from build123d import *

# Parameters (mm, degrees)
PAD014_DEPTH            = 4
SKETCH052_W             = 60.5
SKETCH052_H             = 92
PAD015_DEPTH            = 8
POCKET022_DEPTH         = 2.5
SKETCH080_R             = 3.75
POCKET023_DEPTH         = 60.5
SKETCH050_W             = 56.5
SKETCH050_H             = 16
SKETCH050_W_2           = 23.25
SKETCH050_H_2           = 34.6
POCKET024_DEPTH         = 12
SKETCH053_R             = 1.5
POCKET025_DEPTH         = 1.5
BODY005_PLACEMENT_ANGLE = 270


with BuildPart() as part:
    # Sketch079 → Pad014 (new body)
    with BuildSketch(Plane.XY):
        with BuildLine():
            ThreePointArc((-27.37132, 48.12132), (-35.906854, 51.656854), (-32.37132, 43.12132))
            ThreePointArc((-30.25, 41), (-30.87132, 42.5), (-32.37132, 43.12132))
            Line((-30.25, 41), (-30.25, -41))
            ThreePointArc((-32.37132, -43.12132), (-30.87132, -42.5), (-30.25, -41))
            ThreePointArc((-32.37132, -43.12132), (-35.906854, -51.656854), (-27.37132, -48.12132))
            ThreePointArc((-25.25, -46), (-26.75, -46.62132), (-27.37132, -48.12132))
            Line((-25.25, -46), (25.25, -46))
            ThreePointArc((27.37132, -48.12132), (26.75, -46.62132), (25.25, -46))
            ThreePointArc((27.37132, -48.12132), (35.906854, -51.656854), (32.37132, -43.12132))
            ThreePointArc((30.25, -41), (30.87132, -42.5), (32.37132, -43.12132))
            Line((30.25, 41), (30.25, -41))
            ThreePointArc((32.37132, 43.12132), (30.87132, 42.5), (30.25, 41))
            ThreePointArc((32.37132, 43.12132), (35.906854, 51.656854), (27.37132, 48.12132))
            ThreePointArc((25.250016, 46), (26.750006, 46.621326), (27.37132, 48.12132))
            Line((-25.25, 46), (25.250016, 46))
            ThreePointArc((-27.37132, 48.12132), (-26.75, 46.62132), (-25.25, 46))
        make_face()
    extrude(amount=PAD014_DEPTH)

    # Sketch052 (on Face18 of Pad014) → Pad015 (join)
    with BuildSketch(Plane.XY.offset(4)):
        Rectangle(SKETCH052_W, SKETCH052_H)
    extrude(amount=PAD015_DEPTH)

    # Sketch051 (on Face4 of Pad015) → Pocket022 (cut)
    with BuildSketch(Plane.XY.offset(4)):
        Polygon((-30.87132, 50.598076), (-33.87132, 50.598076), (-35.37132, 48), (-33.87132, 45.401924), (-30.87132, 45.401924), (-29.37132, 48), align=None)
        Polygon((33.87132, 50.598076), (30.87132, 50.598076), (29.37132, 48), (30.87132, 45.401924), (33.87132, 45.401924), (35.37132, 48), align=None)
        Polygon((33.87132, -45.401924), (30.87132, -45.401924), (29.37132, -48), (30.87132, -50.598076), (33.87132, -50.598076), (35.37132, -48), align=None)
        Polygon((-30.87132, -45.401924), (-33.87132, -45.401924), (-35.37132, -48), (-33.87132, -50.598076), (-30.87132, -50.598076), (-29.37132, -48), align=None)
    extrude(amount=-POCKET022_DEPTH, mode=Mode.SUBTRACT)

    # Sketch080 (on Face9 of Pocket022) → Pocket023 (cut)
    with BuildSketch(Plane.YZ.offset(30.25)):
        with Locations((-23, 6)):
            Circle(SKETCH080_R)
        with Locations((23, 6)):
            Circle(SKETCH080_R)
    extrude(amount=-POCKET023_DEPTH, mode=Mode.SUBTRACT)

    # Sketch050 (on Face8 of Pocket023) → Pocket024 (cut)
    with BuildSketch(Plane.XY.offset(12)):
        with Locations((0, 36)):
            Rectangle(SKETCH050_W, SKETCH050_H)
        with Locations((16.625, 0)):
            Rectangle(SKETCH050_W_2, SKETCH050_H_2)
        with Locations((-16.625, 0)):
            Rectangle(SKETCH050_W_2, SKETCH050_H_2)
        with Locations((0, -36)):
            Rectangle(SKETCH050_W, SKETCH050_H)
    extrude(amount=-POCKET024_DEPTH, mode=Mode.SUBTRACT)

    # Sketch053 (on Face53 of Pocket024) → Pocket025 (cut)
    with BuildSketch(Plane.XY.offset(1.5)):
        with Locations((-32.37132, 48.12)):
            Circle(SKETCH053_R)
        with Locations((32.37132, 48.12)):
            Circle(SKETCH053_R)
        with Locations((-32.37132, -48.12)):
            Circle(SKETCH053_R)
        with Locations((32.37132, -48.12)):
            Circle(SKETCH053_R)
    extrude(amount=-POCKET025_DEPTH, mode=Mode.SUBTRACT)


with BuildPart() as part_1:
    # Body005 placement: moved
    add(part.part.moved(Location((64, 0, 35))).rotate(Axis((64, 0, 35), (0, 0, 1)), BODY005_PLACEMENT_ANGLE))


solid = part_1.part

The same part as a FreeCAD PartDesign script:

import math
import FreeCAD as App
import Part
import Sketcher
Q = App.Units.Quantity


def add_polygon(sketch, points):
    """Adds a closed chain of lines whose ends are joined by coincident constraints."""
    first, n = sketch.GeometryCount, len(points)
    for a, b in zip(points, points[1:] + points[:1]):
        sketch.addGeometry(Part.LineSegment(App.Vector(*a, 0), App.Vector(*b, 0)), False)
    for i in range(n):
        sketch.addConstraint(Sketcher.Constraint("Coincident", first + i, 2, first + (i + 1) % n, 1))

doc = App.newDocument("Part")
body = doc.addObject("PartDesign::Body", "Body")

# Sketch on XY plane
sketch1 = body.newObject("Sketcher::SketchObject", "Sketch")
sketch1.AttachmentSupport = (doc.getObject("XY_Plane"), [""])
sketch1.MapMode = "FlatFace"
sketch1.addGeometry([
    Part.ArcOfCircle(Part.Circle(App.Vector(-32.37132, 48.12132, 0), App.Vector(0, 0, 1), 5), math.radians(-0.000001), math.radians(270.000001)),  # 0
    Part.ArcOfCircle(Part.Circle(App.Vector(-32.371319, 41.000001, 0), App.Vector(0, 0, 1), 2.121319), math.radians(-0.000022), math.radians(90.000022)),  # 1
    Part.LineSegment(App.Vector(-30.25, 41, 0), App.Vector(-30.25, -41, 0)),  # 2
    Part.ArcOfCircle(Part.Circle(App.Vector(-32.371319, -41.000001, 0), App.Vector(0, 0, 1), 2.121319), math.radians(-90.000022), math.radians(0.000022)),  # 3
    Part.ArcOfCircle(Part.Circle(App.Vector(-32.37132, -48.12132, 0), App.Vector(0, 0, 1), 5), math.radians(89.999999), math.radians(360.000001)),  # 4
    Part.ArcOfCircle(Part.Circle(App.Vector(-25.250001, -48.121319, 0), App.Vector(0, 0, 1), 2.121319), math.radians(89.999978), math.radians(180.000022)),  # 5
    Part.LineSegment(App.Vector(-25.25, -46, 0), App.Vector(25.25, -46, 0)),  # 6
    Part.ArcOfCircle(Part.Circle(App.Vector(25.250001, -48.121319, 0), App.Vector(0, 0, 1), 2.121319), math.radians(-0.000022), math.radians(90.000022)),  # 7
    Part.ArcOfCircle(Part.Circle(App.Vector(32.37132, -48.12132, 0), App.Vector(0, 0, 1), 5), math.radians(179.999999), math.radians(450.000001)),  # 8
    Part.ArcOfCircle(Part.Circle(App.Vector(32.371319, -41.000001, 0), App.Vector(0, 0, 1), 2.121319), math.radians(179.999978), math.radians(270.000022)),  # 9
    Part.LineSegment(App.Vector(30.25, -41, 0), App.Vector(30.25, 41, 0)),  # 10
    Part.ArcOfCircle(Part.Circle(App.Vector(32.371319, 41.000001, 0), App.Vector(0, 0, 1), 2.121319), math.radians(89.999978), math.radians(180.000022)),  # 11
    Part.ArcOfCircle(Part.Circle(App.Vector(32.37132, 48.12132, 0), App.Vector(0, 0, 1), 5), math.radians(-90.000001), math.radians(180.000001)),  # 12
    Part.ArcOfCircle(Part.Circle(App.Vector(25.250001, 48.121319, 0), App.Vector(0, 0, 1), 2.121319), math.radians(-89.99959), math.radians(0.000022)),  # 13
    Part.LineSegment(App.Vector(25.250016, 46, 0), App.Vector(-25.25, 46, 0)),  # 14
    Part.ArcOfCircle(Part.Circle(App.Vector(-25.250001, 48.121319, 0), App.Vector(0, 0, 1), 2.121319), math.radians(179.999978), math.radians(270.000022)),  # 15
], False)
sketch1.addConstraint([
    Sketcher.Constraint("Tangent", 0, 2, 1, 2),
    Sketcher.Constraint("Tangent", 1, 1, 2, 1),
    Sketcher.Constraint("Tangent", 2, 2, 3, 2),
    Sketcher.Constraint("Tangent", 3, 1, 4, 1),
    Sketcher.Constraint("Tangent", 4, 2, 5, 2),
    Sketcher.Constraint("Tangent", 5, 1, 6, 1),
    Sketcher.Constraint("Tangent", 6, 2, 7, 2),
    Sketcher.Constraint("Tangent", 7, 1, 8, 1),
    Sketcher.Constraint("Tangent", 8, 2, 9, 2),
    Sketcher.Constraint("Tangent", 9, 1, 10, 1),
    Sketcher.Constraint("Tangent", 10, 2, 11, 2),
    Sketcher.Constraint("Tangent", 11, 1, 12, 1),
    Sketcher.Constraint("Tangent", 12, 2, 13, 2),
    Sketcher.Constraint("Coincident", 13, 1, 14, 1),
    Sketcher.Constraint("Tangent", 14, 2, 15, 2),
    Sketcher.Constraint("Tangent", 15, 1, 0, 1),
    Sketcher.Constraint("Vertical", 2),
    Sketcher.Constraint("Horizontal", 6),
    Sketcher.Constraint("Vertical", 10),
    Sketcher.Constraint("Horizontal", 14),
    Sketcher.Constraint("Equal", 1, 3),
    Sketcher.Constraint("Equal", 0, 4),
    Sketcher.Constraint("Equal", 3, 5),
    Sketcher.Constraint("Equal", 5, 7),
    Sketcher.Constraint("Equal", 4, 8),
    Sketcher.Constraint("Equal", 7, 9),
    Sketcher.Constraint("Equal", 9, 11),
    Sketcher.Constraint("Equal", 8, 12),
    Sketcher.Constraint("Equal", 11, 13),
    Sketcher.Constraint("Equal", 13, 15),
    Sketcher.Constraint("Symmetric", 0, 3, 8, 3, -1, 1),
    Sketcher.Constraint("Symmetric", 3, 3, 11, 3, -1, 1),
    Sketcher.Constraint("Symmetric", 5, 3, 13, 3, -1, 1),
    Sketcher.Constraint("Symmetric", 4, 3, 8, 3, -2),
    Sketcher.Constraint("Horizontal", 4, 3, 5, 3),
    Sketcher.Constraint("Vertical", 0, 3, 1, 3),
    Sketcher.Constraint("Radius", 0, Q("5 mm")),
    Sketcher.Constraint("DistanceY", 2, 2, 2, 1, Q("82 mm")),
    Sketcher.Constraint("DistanceX", 6, 1, 6, 2, Q("50.5 mm")),
    Sketcher.Constraint("Radius", 1, Q("2.121319 mm")),
    Sketcher.Constraint("DistanceX", 14, 2, 14, 1, Q("50.500016 mm")),
])
pad1 = body.newObject("PartDesign::Pad", "Pad")
pad1.Profile = sketch1
pad1.Length = 4

# Sketch on XY plane
sketch2 = body.newObject("Sketcher::SketchObject", "Sketch001")
sketch2.AttachmentSupport = (doc.getObject("XY_Plane"), [""])
sketch2.MapMode = "FlatFace"
sketch2.AttachmentOffset = App.Placement(App.Vector(0, 0, 4), App.Rotation())
add_polygon(sketch2, [(-30.25, 46), (-30.25, -46), (30.25, -46), (30.25, 46)])  # lines 0-3
sketch2.addConstraint([
    Sketcher.Constraint("Vertical", 0),
    Sketcher.Constraint("Horizontal", 1),
    Sketcher.Constraint("Vertical", 2),
    Sketcher.Constraint("Horizontal", 3),
    Sketcher.Constraint("Symmetric", 0, 2, 2, 2, -1, 1),
    Sketcher.Constraint("DistanceY", 0, 2, 0, 1, Q("92 mm")),
    Sketcher.Constraint("DistanceX", 1, 1, 1, 2, Q("60.5 mm")),
])
pad2 = body.newObject("PartDesign::Pad", "Pad001")
pad2.Profile = sketch2
pad2.Length = 8

# Sketch on XY plane
sketch3 = body.newObject("Sketcher::SketchObject", "Sketch002")
sketch3.AttachmentSupport = (doc.getObject("XY_Plane"), [""])
sketch3.MapMode = "FlatFace"
sketch3.AttachmentOffset = App.Placement(App.Vector(0, 0, 4), App.Rotation())
add_polygon(sketch3, [(-30.87132, 50.598076), (-33.87132, 50.598076), (-35.37132, 48), (-33.87132, 45.401924), (-30.87132, 45.401924), (-29.37132, 48)])  # lines 0-5
add_polygon(sketch3, [(33.87132, 50.598076), (30.87132, 50.598076), (29.37132, 48), (30.87132, 45.401924), (33.87132, 45.401924), (35.37132, 48)])  # lines 6-11
add_polygon(sketch3, [(33.87132, -45.401924), (30.87132, -45.401924), (29.37132, -48), (30.87132, -50.598076), (33.87132, -50.598076), (35.37132, -48)])  # lines 12-17
add_polygon(sketch3, [(-30.87132, -45.401924), (-33.87132, -45.401924), (-35.37132, -48), (-33.87132, -50.598076), (-30.87132, -50.598076), (-29.37132, -48)])  # lines 18-23
sketch3.addConstraint([
    Sketcher.Constraint("Horizontal", 0),
    Sketcher.Constraint("Horizontal", 3),
    Sketcher.Constraint("Horizontal", 6),
    Sketcher.Constraint("Horizontal", 9),
    Sketcher.Constraint("Horizontal", 12),
    Sketcher.Constraint("Horizontal", 15),
    Sketcher.Constraint("Horizontal", 18),
    Sketcher.Constraint("Horizontal", 21),
    Sketcher.Constraint("Symmetric", 3, 2, 12, 2, -1, 1),
    Sketcher.Constraint("Symmetric", 4, 2, 13, 2, -1, 1),
    Sketcher.Constraint("Symmetric", 5, 2, 14, 2, -1, 1),
    Sketcher.Constraint("Symmetric", 1, 2, 16, 2, -1, 1),
    Sketcher.Constraint("Symmetric", 9, 2, 18, 2, -1, 1),
    Sketcher.Constraint("Symmetric", 10, 2, 19, 2, -1, 1),
    Sketcher.Constraint("Symmetric", 11, 2, 20, 2, -1, 1),
    Sketcher.Constraint("Symmetric", 7, 2, 22, 2, -1, 1),
    Sketcher.Constraint("Symmetric", 5, 2, 6, 2, -2),
    Sketcher.Constraint("Symmetric", 4, 2, 7, 2, -2),
    Sketcher.Constraint("Symmetric", 3, 2, 8, 2, -2),
    Sketcher.Constraint("Symmetric", 1, 2, 10, 2, -2),
    Sketcher.Constraint("Parallel", 1, 4),
    Sketcher.Constraint("Parallel", 2, 5),
    Sketcher.Constraint("Parallel", 4, 7),
    Sketcher.Constraint("Parallel", 7, 10),
    Sketcher.Constraint("Parallel", 8, 11),
    Sketcher.Constraint("Parallel", 13, 16),
    Sketcher.Constraint("Parallel", 14, 17),
    Sketcher.Constraint("Parallel", 19, 22),
    Sketcher.Constraint("Parallel", 20, 23),
    Sketcher.Constraint("Horizontal", 1, 2, 4, 2),
    Sketcher.Constraint("Vertical", 0, 2, 2, 2),
    Sketcher.Constraint("DistanceX", 0, 2, 0, 1, Q("3 mm")),
    Sketcher.Constraint("Angle", 1, Q("-120.000002 deg")),
    Sketcher.Constraint("Distance", 1, Q("3 mm")),
    Sketcher.Constraint("DistanceY", -1, 1, 1, 2, Q("48 mm")),
    Sketcher.Constraint("DistanceX", 0, 2, -1, 1, Q("33.87132 mm")),
])
pocket1 = body.newObject("PartDesign::Pocket", "Pocket")
pocket1.Profile = sketch3
pocket1.Length = 2.5

# Sketch on YZ plane
sketch4 = body.newObject("Sketcher::SketchObject", "Sketch003")
sketch4.AttachmentSupport = (doc.getObject("YZ_Plane"), [""])
sketch4.MapMode = "FlatFace"
sketch4.AttachmentOffset = App.Placement(App.Vector(0, 0, 30.25), App.Rotation())
sketch4.addGeometry([
    Part.Circle(App.Vector(-23, 6, 0), App.Vector(0, 0, 1), 3.75),
    Part.Circle(App.Vector(23, 6, 0), App.Vector(0, 0, 1), 3.75),
], False)
sketch4.addConstraint([
    Sketcher.Constraint("Equal", 0, 1),
    Sketcher.Constraint("Symmetric", 0, 3, 1, 3, -2),
    Sketcher.Constraint("Diameter", 0, Q("7.5 mm")),
    Sketcher.Constraint("DistanceX", 0, 3, -1, 1, Q("23 mm")),
    Sketcher.Constraint("DistanceY", -1, 1, 0, 3, Q("6 mm")),
])
pocket2 = body.newObject("PartDesign::Pocket", "Pocket001")
pocket2.Profile = sketch4
pocket2.Length = 60.5

# Sketch on XY plane
sketch5 = body.newObject("Sketcher::SketchObject", "Sketch004")
sketch5.AttachmentSupport = (doc.getObject("XY_Plane"), [""])
sketch5.MapMode = "FlatFace"
sketch5.AttachmentOffset = App.Placement(App.Vector(0, 0, 12), App.Rotation())
add_polygon(sketch5, [(-28.25, 44), (-28.25, 28), (28.25, 28), (28.25, 44)])  # lines 0-3
add_polygon(sketch5, [(5, 17.3), (5, -17.3), (28.25, -17.3), (28.25, 17.3)])  # lines 4-7
add_polygon(sketch5, [(-28.25, 17.3), (-28.25, -17.3), (-5, -17.3), (-5, 17.3)])  # lines 8-11
add_polygon(sketch5, [(-28.25, -28), (-28.25, -44), (28.25, -44), (28.25, -28)])  # lines 12-15
sketch5.addConstraint([
    Sketcher.Constraint("Vertical", 0),
    Sketcher.Constraint("Horizontal", 1),
    Sketcher.Constraint("Vertical", 2),
    Sketcher.Constraint("Horizontal", 3),
    Sketcher.Constraint("Vertical", 4),
    Sketcher.Constraint("Horizontal", 5),
    Sketcher.Constraint("Vertical", 6),
    Sketcher.Constraint("Horizontal", 7),
    Sketcher.Constraint("Vertical", 8),
    Sketcher.Constraint("Horizontal", 9),
    Sketcher.Constraint("Vertical", 10),
    Sketcher.Constraint("Horizontal", 11),
    Sketcher.Constraint("Vertical", 12),
    Sketcher.Constraint("Horizontal", 13),
    Sketcher.Constraint("Vertical", 14),
    Sketcher.Constraint("Horizontal", 15),
    Sketcher.Constraint("Symmetric", 6, 2, 8, 2, -1, 1),
    Sketcher.Constraint("Symmetric", 4, 2, 10, 2, -1, 1),
    Sketcher.Constraint("Symmetric", 2, 2, 12, 2, -1, 1),
    Sketcher.Constraint("Symmetric", 0, 2, 14, 2, -1, 1),
    Sketcher.Constraint("Horizontal", 5, 2, 8, 2),
    Sketcher.Constraint("Vertical", 2, 2, 5, 2),
    Sketcher.Constraint("Vertical", 3, 2, 8, 2),
    Sketcher.Constraint("DistanceY", 0, 2, 0, 1, Q("16 mm")),
    Sketcher.Constraint("DistanceX", 1, 1, 1, 2, Q("56.5 mm")),
    Sketcher.Constraint("DistanceY", 4, 2, 4, 1, Q("34.6 mm")),
    Sketcher.Constraint("DistanceY", -1, 1, 0, 2, Q("28 mm")),
    Sketcher.Constraint("DistanceX", -1, 1, 4, 2, Q("5 mm")),
])
pocket3 = body.newObject("PartDesign::Pocket", "Pocket002")
pocket3.Profile = sketch5
pocket3.Length = 12

# Sketch on XY plane
sketch6 = body.newObject("Sketcher::SketchObject", "Sketch005")
sketch6.AttachmentSupport = (doc.getObject("XY_Plane"), [""])
sketch6.MapMode = "FlatFace"
sketch6.AttachmentOffset = App.Placement(App.Vector(0, 0, 1.5), App.Rotation())
sketch6.addGeometry([
    Part.Circle(App.Vector(-32.37132, 48.12, 0), App.Vector(0, 0, 1), 1.5),
    Part.Circle(App.Vector(32.37132, 48.12, 0), App.Vector(0, 0, 1), 1.5),
    Part.Circle(App.Vector(-32.37132, -48.12, 0), App.Vector(0, 0, 1), 1.5),
    Part.Circle(App.Vector(32.37132, -48.12, 0), App.Vector(0, 0, 1), 1.5),
], False)
sketch6.addConstraint([
    Sketcher.Constraint("Equal", 0, 1),
    Sketcher.Constraint("Equal", 1, 2),
    Sketcher.Constraint("Equal", 2, 3),
    Sketcher.Constraint("Symmetric", 1, 3, 2, 3, -1, 1),
    Sketcher.Constraint("Symmetric", 0, 3, 3, 3, -1, 1),
    Sketcher.Constraint("Symmetric", 0, 3, 1, 3, -2),
    Sketcher.Constraint("Diameter", 0, Q("3 mm")),
    Sketcher.Constraint("DistanceY", -1, 1, 0, 3, Q("48.12 mm")),
    Sketcher.Constraint("DistanceX", 0, 3, -1, 1, Q("32.37132 mm")),
])
pocket4 = body.newObject("PartDesign::Pocket", "Pocket003")
pocket4.Profile = sketch6
pocket4.Length = 1.5
body2 = doc.addObject("PartDesign::Body", "Body001")
doc.recompute()

body.Placement = App.Placement(App.Vector(64, 0, 35), App.Rotation(App.Vector(0, 0, 1), 270))
boolean = body2.newObject("PartDesign::Boolean", "Boolean")
boolean.Type = "Fuse"
boolean.addObjects([body])

doc.recompute()
